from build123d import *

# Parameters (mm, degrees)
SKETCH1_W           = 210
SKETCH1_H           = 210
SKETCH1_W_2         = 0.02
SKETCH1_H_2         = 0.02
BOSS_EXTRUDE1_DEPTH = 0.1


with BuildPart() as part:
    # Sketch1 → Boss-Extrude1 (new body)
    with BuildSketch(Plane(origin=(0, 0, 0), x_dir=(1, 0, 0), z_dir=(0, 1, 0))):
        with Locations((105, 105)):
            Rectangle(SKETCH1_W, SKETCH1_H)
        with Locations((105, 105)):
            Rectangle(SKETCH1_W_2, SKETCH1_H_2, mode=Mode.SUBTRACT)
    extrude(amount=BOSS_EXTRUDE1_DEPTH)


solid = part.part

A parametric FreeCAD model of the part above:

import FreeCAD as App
import Part
import Sketcher

V = App.Vector

doc = App.newDocument("Part")
body = doc.addObject("PartDesign::Body", "Body")

sketch1 = doc.addObject("Sketcher::SketchObject", "Sketch")
body.addObject(sketch1)
sketch1.AttachmentSupport = (doc.XZ_Plane, [""])
sketch1.MapMode = "FlatFace"
sketch1.addGeometry([
    Part.LineSegment(V(0, -210, 0), V(0, 0, 0)),
    Part.LineSegment(V(0, 0, 0), V(210, 0, 0)),
    Part.LineSegment(V(210, 0, 0), V(210, -210, 0)),
    Part.LineSegment(V(210, -210, 0), V(0, -210, 0)),
    Part.LineSegment(V(105.01, -104.99, 0), V(104.99, -104.99, 0)),
    Part.LineSegment(V(104.99, -104.99, 0), V(104.99, -105.01, 0)),
    Part.LineSegment(V(104.99, -105.01, 0), V(105.01, -105.01, 0)),
    Part.LineSegment(V(105.01, -105.01, 0), V(105.01, -104.99, 0)),
], False)
sketch1.addConstraint([
    Sketcher.Constraint("Coincident", 0, 2, 1, 1),
    Sketcher.Constraint("Coincident", 1, 2, 2, 1),
    Sketcher.Constraint("Coincident", 2, 2, 3, 1),
    Sketcher.Constraint("Coincident", 3, 2, 0, 1),
    Sketcher.Constraint("Coincident", 4, 2, 5, 1),
    Sketcher.Constraint("Coincident", 5, 2, 6, 1),
    Sketcher.Constraint("Coincident", 6, 2, 7, 1),
    Sketcher.Constraint("Coincident", 7, 2, 4, 1),
    Sketcher.Constraint("Vertical", 0),
    Sketcher.Constraint("Horizontal", 1),
    Sketcher.Constraint("Vertical", 2),
    Sketcher.Constraint("Horizontal", 3),
    Sketcher.Constraint("Horizontal", 4),
    Sketcher.Constraint("Vertical", 5),
    Sketcher.Constraint("Horizontal", 6),
    Sketcher.Constraint("Vertical", 7),
    Sketcher.Constraint("Coincident", 0, 2, -1, 1),
    Sketcher.Constraint("Equal", 3, 0),
    Sketcher.Constraint("Equal", 6, 5),
    Sketcher.Constraint("DistanceX", 1, 1, 1, 2, 210.0),
    Sketcher.Constraint("DistanceX", 4, 2, 4, 1, 0.02),
    Sketcher.Constraint("DistanceX", -1, 1, 4, 2, 104.99),
    Sketcher.Constraint("DistanceY", 4, 2, -1, 1, 104.99),
])
pad1 = doc.addObject("PartDesign::Pad", "Pad")
body.addObject(pad1)
pad1.Profile = sketch1
pad1.Length = 0.1
pad1.Reversed = True

doc.recompute()
